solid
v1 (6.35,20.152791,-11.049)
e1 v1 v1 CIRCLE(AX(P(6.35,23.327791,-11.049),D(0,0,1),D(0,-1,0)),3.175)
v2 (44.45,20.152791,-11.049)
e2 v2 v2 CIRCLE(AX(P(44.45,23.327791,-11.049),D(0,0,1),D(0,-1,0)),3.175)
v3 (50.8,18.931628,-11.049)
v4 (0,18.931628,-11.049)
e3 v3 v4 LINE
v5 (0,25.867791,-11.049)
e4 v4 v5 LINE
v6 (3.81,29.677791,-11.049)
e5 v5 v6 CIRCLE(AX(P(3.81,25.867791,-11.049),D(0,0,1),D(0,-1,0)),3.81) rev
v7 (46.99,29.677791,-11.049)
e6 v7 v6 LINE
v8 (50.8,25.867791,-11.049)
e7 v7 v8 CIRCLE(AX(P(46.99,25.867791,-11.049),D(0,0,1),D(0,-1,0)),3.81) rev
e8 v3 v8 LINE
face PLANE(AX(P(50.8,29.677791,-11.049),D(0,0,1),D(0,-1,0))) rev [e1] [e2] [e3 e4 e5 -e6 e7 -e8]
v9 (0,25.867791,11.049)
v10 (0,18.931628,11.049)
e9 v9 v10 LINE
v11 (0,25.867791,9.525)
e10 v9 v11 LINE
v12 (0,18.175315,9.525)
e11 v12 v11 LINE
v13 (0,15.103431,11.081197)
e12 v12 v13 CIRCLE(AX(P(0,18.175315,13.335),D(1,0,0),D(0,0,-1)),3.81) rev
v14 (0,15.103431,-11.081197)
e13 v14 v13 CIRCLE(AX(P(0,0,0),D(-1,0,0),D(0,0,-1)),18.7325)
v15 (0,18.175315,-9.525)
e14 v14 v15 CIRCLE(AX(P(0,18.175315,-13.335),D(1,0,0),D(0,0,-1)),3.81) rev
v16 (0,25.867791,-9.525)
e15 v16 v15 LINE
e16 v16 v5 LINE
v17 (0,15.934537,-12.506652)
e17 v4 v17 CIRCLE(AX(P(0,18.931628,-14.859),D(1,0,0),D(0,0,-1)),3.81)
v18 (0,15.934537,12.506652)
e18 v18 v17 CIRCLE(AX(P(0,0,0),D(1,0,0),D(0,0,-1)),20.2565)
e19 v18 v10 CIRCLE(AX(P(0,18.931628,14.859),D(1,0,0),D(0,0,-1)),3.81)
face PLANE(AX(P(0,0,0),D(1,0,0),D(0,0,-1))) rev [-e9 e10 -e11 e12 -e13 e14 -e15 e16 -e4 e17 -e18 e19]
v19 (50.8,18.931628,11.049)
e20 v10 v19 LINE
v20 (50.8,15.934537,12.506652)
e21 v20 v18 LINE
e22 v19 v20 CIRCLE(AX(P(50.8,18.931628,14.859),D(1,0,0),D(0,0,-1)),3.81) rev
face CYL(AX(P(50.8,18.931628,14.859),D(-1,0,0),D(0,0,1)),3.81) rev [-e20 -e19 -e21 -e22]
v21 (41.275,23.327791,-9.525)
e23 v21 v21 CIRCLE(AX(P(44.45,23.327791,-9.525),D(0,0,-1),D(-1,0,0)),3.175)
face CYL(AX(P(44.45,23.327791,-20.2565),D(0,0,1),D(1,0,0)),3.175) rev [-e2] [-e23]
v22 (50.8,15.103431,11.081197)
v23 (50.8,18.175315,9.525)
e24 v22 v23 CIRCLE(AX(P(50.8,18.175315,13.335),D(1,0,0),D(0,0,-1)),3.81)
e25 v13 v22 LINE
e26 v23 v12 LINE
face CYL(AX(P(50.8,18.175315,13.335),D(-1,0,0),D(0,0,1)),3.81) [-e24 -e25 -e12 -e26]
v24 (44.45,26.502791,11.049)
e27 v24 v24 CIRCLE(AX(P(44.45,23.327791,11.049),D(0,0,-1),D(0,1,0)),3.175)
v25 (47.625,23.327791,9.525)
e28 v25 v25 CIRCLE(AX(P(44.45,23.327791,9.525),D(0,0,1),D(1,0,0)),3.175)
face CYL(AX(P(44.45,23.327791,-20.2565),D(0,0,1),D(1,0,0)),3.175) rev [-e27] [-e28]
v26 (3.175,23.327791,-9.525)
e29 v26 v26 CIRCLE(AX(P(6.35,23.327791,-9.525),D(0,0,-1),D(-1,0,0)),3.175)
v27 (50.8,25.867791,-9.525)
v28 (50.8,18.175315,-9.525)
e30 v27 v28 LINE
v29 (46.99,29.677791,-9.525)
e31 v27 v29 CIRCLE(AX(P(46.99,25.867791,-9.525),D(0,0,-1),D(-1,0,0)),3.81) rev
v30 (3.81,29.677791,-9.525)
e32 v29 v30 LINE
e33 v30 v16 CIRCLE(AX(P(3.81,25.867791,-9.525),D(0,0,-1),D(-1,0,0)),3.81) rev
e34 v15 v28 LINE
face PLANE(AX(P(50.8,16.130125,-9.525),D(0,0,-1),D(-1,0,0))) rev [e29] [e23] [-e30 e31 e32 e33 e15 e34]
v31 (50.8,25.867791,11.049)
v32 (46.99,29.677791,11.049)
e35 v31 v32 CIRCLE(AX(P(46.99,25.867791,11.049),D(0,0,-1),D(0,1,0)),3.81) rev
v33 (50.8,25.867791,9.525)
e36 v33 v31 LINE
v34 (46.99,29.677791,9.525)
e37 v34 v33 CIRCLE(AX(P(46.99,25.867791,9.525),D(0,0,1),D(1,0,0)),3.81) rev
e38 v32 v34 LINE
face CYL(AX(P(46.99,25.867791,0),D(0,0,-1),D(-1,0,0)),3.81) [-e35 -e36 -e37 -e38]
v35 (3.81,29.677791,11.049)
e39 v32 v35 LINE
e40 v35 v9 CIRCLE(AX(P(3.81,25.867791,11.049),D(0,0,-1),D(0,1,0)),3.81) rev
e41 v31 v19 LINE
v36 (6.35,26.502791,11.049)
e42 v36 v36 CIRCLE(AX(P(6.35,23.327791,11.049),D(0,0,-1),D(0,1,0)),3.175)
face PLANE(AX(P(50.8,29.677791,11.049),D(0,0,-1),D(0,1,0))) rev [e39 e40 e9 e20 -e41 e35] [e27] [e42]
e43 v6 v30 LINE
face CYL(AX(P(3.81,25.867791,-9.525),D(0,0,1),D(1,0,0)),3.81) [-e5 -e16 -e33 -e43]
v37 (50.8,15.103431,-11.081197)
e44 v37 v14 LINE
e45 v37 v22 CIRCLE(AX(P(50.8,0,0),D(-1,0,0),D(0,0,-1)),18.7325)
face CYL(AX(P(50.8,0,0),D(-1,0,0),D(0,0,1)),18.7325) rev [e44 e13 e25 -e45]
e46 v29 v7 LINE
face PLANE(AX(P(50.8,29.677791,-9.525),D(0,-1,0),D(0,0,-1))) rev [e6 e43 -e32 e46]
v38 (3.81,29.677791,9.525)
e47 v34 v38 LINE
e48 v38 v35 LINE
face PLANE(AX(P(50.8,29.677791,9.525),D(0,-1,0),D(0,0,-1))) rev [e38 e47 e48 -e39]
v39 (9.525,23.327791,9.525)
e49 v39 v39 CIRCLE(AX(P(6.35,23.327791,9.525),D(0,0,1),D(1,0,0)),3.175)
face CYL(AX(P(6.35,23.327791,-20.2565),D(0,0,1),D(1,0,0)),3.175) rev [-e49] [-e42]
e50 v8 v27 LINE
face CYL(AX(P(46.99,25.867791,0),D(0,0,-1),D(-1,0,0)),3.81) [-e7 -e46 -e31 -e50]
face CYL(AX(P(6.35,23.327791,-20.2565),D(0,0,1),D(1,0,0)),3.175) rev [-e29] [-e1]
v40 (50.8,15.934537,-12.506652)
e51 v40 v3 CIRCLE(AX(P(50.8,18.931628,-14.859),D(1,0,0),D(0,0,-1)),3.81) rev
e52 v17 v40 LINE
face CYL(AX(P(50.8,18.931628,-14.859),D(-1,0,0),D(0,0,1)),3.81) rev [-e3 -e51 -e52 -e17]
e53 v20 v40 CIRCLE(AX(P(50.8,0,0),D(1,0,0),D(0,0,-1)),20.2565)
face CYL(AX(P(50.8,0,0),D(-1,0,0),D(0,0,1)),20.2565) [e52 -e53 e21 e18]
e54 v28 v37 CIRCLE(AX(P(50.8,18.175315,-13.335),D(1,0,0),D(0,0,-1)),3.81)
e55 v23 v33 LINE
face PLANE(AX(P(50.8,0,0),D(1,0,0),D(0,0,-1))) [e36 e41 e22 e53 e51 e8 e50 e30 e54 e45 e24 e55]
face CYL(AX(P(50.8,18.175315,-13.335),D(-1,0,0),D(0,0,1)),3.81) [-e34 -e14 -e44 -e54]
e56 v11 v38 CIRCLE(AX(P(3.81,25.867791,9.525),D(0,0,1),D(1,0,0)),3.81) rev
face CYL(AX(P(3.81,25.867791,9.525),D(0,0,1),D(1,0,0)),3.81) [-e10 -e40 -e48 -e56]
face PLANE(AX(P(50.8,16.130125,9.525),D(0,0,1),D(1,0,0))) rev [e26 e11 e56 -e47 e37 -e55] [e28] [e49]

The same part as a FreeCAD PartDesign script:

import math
import FreeCAD as App
import Part
import Sketcher

V = App.Vector
Q = App.Units.Quantity


def edges_at(feature, points):
    """Names of the edges that pass closest to the given points."""
    edges = feature.Shape.Edges
    near = lambda p: min(range(len(edges)), key=lambda i: edges[i].distToShape(Part.Vertex(*p))[0])
    return sorted({f"Edge{near(p) + 1}" for p in points})

doc = App.newDocument("Part")
body = doc.addObject("PartDesign::Body", "Body")

sketch1 = doc.addObject("Sketcher::SketchObject", "Sketch")
body.addObject(sketch1)
sketch1.AttachmentSupport = (doc.YZ_Plane, [""])
sketch1.MapMode = "FlatFace"
sketch1.addGeometry([
    Part.LineSegment(V(29.7, -9.5, 0), V(16.1, -9.5, 0)),
    Part.ArcOfCircle(Part.Circle(V(0, 0, 0), V(0, 0, 1), 18.7), math.radians(31), math.radians(329)),
    Part.LineSegment(V(16.1, 9.5, 0), V(29.7, 9.5, 0)),
    Part.LineSegment(V(29.7, 9.5, 0), V(29.7, 11, 0)),
    Part.LineSegment(V(29.7, 11, 0), V(17, 11, 0)),
    Part.ArcOfCircle(Part.Circle(V(0, 0, 0), V(0, 0, 1), 20.3), math.radians(33), math.radians(327)),
    Part.LineSegment(V(17, -11, 0), V(29.7, -11, 0)),
    Part.LineSegment(V(29.7, -11, 0), V(29.7, -9.5, 0)),
], False)
sketch1.addConstraint([
    Sketcher.Constraint("Coincident", 0, 2, 1, 2),
    Sketcher.Constraint("Coincident", 1, 1, 2, 1),
    Sketcher.Constraint("Coincident", 2, 2, 3, 1),
    Sketcher.Constraint("Coincident", 3, 2, 4, 1),
    Sketcher.Constraint("Coincident", 4, 2, 5, 1),
    Sketcher.Constraint("Coincident", 5, 2, 6, 1),
    Sketcher.Constraint("Coincident", 6, 2, 7, 1),
    Sketcher.Constraint("Coincident", 7, 2, 0, 1),
    Sketcher.Constraint("Horizontal", 0),
    Sketcher.Constraint("Horizontal", 2),
    Sketcher.Constraint("Vertical", 3),
    Sketcher.Constraint("Horizontal", 4),
    Sketcher.Constraint("Horizontal", 6),
    Sketcher.Constraint("Vertical", 7),
    Sketcher.Constraint("Coincident", 1, 3, -1, 1),
    Sketcher.Constraint("Coincident", 5, 3, -1, 1),
    Sketcher.Constraint("Symmetric", 3, 2, 6, 2, -1),
    Sketcher.Constraint("Vertical", 0, 2, 1, 1),
    Sketcher.Constraint("DistanceX", 4, 2, 4, 1, Q("0.5 in")),
    Sketcher.Constraint("DistanceY", 3, 1, 3, 2, Q("0.06 in")),
    Sketcher.Constraint("Radius", 1, Q("0.7375 in")),
    Sketcher.Constraint("Radius", 5, Q("0.7975 in")),
    Sketcher.Constraint("DistanceY", 0, 2, 1, 1, Q("0.75 in")),
])
pad1 = doc.addObject("PartDesign::Pad", "Pad")
body.addObject(pad1)
pad1.Profile = sketch1
pad1.Length = Q("2 in")

sketch2 = doc.addObject("Sketcher::SketchObject", "Sketch001")
body.addObject(sketch2)
sketch2.AttachmentSupport = (doc.XY_Plane, [""])
sketch2.MapMode = "FlatFace"
sketch2.addGeometry([
    Part.Circle(V(6.3, 23.3, 0), V(0, 0, 1), 3.2),
    Part.Circle(V(44.5, 23.3, 0), V(0, 0, 1), 3.2),
], False)
sketch2.addConstraint([
    Sketcher.Constraint("Equal", 0, 1),
    Sketcher.Constraint("Horizontal", 0, 3, 1, 3),
    Sketcher.Constraint("Diameter", 0, Q("0.25 in")),
    Sketcher.Constraint("DistanceX", 0, 3, 1, 3, Q("1.5 in")),
    Sketcher.Constraint("DistanceX", -1, 1, 0, 3, Q("0.25 in")),
    Sketcher.Constraint("DistanceY", -1, 1, 0, 3, Q("23.327791 mm")),
])
pocket1 = doc.addObject("PartDesign::Pocket", "Pocket")
body.addObject(pocket1)
pocket1.Profile = sketch2
pocket1.Type = "ThroughAll"
pocket1.Midplane = True
doc.recompute()

fillet = doc.addObject("PartDesign::Fillet", "Fillet")
body.addObject(fillet)
fillet.Base = (pocket1, edges_at(pocket1, [
    (0, 29.678, 10.287),
    (50.8, 29.678, 10.287),
    (25.4, 16.13, -9.525),
    (25.4, 16.978, -11.049),
    (25.4, 16.978, 11.049),
    (25.4, 16.13, 9.525),
    (50.8, 29.678, -10.287),
    (0, 29.678, -10.287),
]))
fillet.Radius = Q("0.15 in")

doc.recompute()
